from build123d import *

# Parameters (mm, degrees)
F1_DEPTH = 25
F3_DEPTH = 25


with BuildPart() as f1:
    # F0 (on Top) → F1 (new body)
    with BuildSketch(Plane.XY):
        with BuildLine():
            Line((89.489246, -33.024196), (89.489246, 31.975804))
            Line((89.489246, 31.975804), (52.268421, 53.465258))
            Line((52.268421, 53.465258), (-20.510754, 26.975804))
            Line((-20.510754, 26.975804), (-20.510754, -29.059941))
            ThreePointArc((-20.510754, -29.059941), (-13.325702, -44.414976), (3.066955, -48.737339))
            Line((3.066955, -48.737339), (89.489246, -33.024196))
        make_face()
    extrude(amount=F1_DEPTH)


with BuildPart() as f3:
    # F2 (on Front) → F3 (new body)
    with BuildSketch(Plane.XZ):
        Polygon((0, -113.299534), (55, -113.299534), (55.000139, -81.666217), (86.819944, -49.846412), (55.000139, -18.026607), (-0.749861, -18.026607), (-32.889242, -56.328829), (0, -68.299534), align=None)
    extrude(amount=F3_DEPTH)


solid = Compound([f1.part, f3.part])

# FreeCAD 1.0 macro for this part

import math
import FreeCAD as App
import Part
import Sketcher

V = App.Vector
Q = App.Units.Quantity

doc = App.newDocument("Part")
body = doc.addObject("PartDesign::Body", "Body")

# Sketch on XY plane
sketch1 = body.newObject("Sketcher::SketchObject", "Sketch")
sketch1.AttachmentSupport = (doc.getObject("XY_Plane"), [""])
sketch1.MapMode = "FlatFace"
sketch1.addGeometry([
    Part.LineSegment(V(89.489246, -33.024196, 0), V(89.489246, 31.975804, 0)),  # 0
    Part.LineSegment(V(89.489246, 31.975804, 0), V(52.268421, 53.465258, 0)),  # 1
    Part.LineSegment(V(52.268421, 53.465258, 0), V(-20.510754, 26.975804, 0)),  # 2
    Part.LineSegment(V(-20.510754, 26.975804, 0), V(-20.510754, -29.059941, 0)),  # 3
    Part.ArcOfCircle(Part.Circle(V(-0.510754, -29.059941, 0), V(0, 0, 1), 20), math.radians(-179.999999), math.radians(-79.695153)),  # 4
    Part.LineSegment(V(3.066955, -48.737339, 0), V(89.489246, -33.024196, 0)),  # 5
], False)
sketch1.addConstraint([
    Sketcher.Constraint("Coincident", 0, 2, 1, 1),
    Sketcher.Constraint("Coincident", 1, 2, 2, 1),
    Sketcher.Constraint("Coincident", 2, 2, 3, 1),
    Sketcher.Constraint("Tangent", 3, 2, 4, 1),
    Sketcher.Constraint("Tangent", 4, 2, 5, 1),
    Sketcher.Constraint("Coincident", 5, 2, 0, 1),
    Sketcher.Constraint("Vertical", 0),
    Sketcher.Constraint("Vertical", 3),
    Sketcher.Constraint("Radius", 4, 20.0),
    Sketcher.Constraint("DistanceY", 0, 1, 0, 2, 65.0),
    Sketcher.Constraint("Angle", 1, Q("149.999999 deg")),
    Sketcher.Constraint("Angle", 2, Q("-160 deg")),
    Sketcher.Constraint("DistanceX", 4, 3, 0, 2, 90.0),
    Sketcher.Constraint("DistanceY", 2, 2, 0, 2, 5.0),
    Sketcher.Constraint("DistanceY", 4, 3, 1, 2, 82.525199),
    Sketcher.Constraint("DistanceY", 4, 3, -1, 1, 29.059941),
    Sketcher.Constraint("DistanceX", -1, 1, 1, 2, 52.268421),
])
pad1 = body.newObject("PartDesign::Pad", "Pad")
pad1.Profile = sketch1
pad1.Length = 25
body2 = doc.addObject("PartDesign::Body", "Body001")

# Sketch on XZ plane
sketch2 = body2.newObject("Sketcher::SketchObject", "Sketch001")
sketch2.AttachmentSupport = (doc.getObject("XZ_Plane001"), [""])
sketch2.MapMode = "FlatFace"
sketch2.addGeometry([
    Part.LineSegment(V(0, -113.299534, 0), V(55, -113.299534, 0)),  # 0
    Part.LineSegment(V(55, -113.299534, 0), V(55.000139, -81.666217, 0)),  # 1
    Part.LineSegment(V(55.000139, -81.666217, 0), V(86.819944, -49.846412, 0)),  # 2
    Part.LineSegment(V(86.819944, -49.846412, 0), V(55.000139, -18.026607, 0)),  # 3
    Part.LineSegment(V(55.000139, -18.026607, 0), V(-0.749861, -18.026607, 0)),  # 4
    Part.LineSegment(V(-0.749861, -18.026607, 0), V(-32.889242, -56.328829, 0)),  # 5
    Part.LineSegment(V(-32.889242, -56.328829, 0), V(0, -68.299534, 0)),  # 6
    Part.LineSegment(V(0, -68.299534, 0), V(0, -113.299534, 0)),  # 7
], False)
sketch2.addConstraint([
    Sketcher.Constraint("Coincident", 0, 2, 1, 1),
    Sketcher.Constraint("Coincident", 1, 2, 2, 1),
    Sketcher.Constraint("Coincident", 2, 2, 3, 1),
    Sketcher.Constraint("Coincident", 3, 2, 4, 1),
    Sketcher.Constraint("Coincident", 4, 2, 5, 1),
    Sketcher.Constraint("Coincident", 5, 2, 6, 1),
    Sketcher.Constraint("Coincident", 6, 2, 7, 1),
    Sketcher.Constraint("Coincident", 7, 2, 0, 1),
    Sketcher.Constraint("Horizontal", 0),
    Sketcher.Constraint("Horizontal", 4),
    Sketcher.Constraint("Vertical", 7),
    Sketcher.Constraint("PointOnObject", 6, 2, -2),
    Sketcher.Constraint("Perpendicular", 2, 3),
    Sketcher.Constraint("Vertical", 1, 2, 3, 2),
    Sketcher.Constraint("Equal", 2, 3),
    Sketcher.Constraint("DistanceX", 0, 1, 0, 2, 55.0),
    Sketcher.Constraint("DistanceY", 7, 2, 7, 1, 45.0),
    Sketcher.Constraint("Angle", 5, Q("-130.000001 deg")),
    Sketcher.Constraint("Angle", 6, Q("-20 deg")),
    Sketcher.Constraint("Distance", 2, 45.0),
    Sketcher.Constraint("Distance", 5, 50.0),
    Sketcher.Constraint("Distance", 6, 35.0),
    Sketcher.Constraint("DistanceX", 4, 2, 4, 1, 55.75),
    Sketcher.Constraint("DistanceY", 5, 2, -1, 1, 56.328829),
])
pad2 = body2.newObject("PartDesign::Pad", "Pad001")
pad2.Profile = sketch2
pad2.Length = 25

doc.recompute()
